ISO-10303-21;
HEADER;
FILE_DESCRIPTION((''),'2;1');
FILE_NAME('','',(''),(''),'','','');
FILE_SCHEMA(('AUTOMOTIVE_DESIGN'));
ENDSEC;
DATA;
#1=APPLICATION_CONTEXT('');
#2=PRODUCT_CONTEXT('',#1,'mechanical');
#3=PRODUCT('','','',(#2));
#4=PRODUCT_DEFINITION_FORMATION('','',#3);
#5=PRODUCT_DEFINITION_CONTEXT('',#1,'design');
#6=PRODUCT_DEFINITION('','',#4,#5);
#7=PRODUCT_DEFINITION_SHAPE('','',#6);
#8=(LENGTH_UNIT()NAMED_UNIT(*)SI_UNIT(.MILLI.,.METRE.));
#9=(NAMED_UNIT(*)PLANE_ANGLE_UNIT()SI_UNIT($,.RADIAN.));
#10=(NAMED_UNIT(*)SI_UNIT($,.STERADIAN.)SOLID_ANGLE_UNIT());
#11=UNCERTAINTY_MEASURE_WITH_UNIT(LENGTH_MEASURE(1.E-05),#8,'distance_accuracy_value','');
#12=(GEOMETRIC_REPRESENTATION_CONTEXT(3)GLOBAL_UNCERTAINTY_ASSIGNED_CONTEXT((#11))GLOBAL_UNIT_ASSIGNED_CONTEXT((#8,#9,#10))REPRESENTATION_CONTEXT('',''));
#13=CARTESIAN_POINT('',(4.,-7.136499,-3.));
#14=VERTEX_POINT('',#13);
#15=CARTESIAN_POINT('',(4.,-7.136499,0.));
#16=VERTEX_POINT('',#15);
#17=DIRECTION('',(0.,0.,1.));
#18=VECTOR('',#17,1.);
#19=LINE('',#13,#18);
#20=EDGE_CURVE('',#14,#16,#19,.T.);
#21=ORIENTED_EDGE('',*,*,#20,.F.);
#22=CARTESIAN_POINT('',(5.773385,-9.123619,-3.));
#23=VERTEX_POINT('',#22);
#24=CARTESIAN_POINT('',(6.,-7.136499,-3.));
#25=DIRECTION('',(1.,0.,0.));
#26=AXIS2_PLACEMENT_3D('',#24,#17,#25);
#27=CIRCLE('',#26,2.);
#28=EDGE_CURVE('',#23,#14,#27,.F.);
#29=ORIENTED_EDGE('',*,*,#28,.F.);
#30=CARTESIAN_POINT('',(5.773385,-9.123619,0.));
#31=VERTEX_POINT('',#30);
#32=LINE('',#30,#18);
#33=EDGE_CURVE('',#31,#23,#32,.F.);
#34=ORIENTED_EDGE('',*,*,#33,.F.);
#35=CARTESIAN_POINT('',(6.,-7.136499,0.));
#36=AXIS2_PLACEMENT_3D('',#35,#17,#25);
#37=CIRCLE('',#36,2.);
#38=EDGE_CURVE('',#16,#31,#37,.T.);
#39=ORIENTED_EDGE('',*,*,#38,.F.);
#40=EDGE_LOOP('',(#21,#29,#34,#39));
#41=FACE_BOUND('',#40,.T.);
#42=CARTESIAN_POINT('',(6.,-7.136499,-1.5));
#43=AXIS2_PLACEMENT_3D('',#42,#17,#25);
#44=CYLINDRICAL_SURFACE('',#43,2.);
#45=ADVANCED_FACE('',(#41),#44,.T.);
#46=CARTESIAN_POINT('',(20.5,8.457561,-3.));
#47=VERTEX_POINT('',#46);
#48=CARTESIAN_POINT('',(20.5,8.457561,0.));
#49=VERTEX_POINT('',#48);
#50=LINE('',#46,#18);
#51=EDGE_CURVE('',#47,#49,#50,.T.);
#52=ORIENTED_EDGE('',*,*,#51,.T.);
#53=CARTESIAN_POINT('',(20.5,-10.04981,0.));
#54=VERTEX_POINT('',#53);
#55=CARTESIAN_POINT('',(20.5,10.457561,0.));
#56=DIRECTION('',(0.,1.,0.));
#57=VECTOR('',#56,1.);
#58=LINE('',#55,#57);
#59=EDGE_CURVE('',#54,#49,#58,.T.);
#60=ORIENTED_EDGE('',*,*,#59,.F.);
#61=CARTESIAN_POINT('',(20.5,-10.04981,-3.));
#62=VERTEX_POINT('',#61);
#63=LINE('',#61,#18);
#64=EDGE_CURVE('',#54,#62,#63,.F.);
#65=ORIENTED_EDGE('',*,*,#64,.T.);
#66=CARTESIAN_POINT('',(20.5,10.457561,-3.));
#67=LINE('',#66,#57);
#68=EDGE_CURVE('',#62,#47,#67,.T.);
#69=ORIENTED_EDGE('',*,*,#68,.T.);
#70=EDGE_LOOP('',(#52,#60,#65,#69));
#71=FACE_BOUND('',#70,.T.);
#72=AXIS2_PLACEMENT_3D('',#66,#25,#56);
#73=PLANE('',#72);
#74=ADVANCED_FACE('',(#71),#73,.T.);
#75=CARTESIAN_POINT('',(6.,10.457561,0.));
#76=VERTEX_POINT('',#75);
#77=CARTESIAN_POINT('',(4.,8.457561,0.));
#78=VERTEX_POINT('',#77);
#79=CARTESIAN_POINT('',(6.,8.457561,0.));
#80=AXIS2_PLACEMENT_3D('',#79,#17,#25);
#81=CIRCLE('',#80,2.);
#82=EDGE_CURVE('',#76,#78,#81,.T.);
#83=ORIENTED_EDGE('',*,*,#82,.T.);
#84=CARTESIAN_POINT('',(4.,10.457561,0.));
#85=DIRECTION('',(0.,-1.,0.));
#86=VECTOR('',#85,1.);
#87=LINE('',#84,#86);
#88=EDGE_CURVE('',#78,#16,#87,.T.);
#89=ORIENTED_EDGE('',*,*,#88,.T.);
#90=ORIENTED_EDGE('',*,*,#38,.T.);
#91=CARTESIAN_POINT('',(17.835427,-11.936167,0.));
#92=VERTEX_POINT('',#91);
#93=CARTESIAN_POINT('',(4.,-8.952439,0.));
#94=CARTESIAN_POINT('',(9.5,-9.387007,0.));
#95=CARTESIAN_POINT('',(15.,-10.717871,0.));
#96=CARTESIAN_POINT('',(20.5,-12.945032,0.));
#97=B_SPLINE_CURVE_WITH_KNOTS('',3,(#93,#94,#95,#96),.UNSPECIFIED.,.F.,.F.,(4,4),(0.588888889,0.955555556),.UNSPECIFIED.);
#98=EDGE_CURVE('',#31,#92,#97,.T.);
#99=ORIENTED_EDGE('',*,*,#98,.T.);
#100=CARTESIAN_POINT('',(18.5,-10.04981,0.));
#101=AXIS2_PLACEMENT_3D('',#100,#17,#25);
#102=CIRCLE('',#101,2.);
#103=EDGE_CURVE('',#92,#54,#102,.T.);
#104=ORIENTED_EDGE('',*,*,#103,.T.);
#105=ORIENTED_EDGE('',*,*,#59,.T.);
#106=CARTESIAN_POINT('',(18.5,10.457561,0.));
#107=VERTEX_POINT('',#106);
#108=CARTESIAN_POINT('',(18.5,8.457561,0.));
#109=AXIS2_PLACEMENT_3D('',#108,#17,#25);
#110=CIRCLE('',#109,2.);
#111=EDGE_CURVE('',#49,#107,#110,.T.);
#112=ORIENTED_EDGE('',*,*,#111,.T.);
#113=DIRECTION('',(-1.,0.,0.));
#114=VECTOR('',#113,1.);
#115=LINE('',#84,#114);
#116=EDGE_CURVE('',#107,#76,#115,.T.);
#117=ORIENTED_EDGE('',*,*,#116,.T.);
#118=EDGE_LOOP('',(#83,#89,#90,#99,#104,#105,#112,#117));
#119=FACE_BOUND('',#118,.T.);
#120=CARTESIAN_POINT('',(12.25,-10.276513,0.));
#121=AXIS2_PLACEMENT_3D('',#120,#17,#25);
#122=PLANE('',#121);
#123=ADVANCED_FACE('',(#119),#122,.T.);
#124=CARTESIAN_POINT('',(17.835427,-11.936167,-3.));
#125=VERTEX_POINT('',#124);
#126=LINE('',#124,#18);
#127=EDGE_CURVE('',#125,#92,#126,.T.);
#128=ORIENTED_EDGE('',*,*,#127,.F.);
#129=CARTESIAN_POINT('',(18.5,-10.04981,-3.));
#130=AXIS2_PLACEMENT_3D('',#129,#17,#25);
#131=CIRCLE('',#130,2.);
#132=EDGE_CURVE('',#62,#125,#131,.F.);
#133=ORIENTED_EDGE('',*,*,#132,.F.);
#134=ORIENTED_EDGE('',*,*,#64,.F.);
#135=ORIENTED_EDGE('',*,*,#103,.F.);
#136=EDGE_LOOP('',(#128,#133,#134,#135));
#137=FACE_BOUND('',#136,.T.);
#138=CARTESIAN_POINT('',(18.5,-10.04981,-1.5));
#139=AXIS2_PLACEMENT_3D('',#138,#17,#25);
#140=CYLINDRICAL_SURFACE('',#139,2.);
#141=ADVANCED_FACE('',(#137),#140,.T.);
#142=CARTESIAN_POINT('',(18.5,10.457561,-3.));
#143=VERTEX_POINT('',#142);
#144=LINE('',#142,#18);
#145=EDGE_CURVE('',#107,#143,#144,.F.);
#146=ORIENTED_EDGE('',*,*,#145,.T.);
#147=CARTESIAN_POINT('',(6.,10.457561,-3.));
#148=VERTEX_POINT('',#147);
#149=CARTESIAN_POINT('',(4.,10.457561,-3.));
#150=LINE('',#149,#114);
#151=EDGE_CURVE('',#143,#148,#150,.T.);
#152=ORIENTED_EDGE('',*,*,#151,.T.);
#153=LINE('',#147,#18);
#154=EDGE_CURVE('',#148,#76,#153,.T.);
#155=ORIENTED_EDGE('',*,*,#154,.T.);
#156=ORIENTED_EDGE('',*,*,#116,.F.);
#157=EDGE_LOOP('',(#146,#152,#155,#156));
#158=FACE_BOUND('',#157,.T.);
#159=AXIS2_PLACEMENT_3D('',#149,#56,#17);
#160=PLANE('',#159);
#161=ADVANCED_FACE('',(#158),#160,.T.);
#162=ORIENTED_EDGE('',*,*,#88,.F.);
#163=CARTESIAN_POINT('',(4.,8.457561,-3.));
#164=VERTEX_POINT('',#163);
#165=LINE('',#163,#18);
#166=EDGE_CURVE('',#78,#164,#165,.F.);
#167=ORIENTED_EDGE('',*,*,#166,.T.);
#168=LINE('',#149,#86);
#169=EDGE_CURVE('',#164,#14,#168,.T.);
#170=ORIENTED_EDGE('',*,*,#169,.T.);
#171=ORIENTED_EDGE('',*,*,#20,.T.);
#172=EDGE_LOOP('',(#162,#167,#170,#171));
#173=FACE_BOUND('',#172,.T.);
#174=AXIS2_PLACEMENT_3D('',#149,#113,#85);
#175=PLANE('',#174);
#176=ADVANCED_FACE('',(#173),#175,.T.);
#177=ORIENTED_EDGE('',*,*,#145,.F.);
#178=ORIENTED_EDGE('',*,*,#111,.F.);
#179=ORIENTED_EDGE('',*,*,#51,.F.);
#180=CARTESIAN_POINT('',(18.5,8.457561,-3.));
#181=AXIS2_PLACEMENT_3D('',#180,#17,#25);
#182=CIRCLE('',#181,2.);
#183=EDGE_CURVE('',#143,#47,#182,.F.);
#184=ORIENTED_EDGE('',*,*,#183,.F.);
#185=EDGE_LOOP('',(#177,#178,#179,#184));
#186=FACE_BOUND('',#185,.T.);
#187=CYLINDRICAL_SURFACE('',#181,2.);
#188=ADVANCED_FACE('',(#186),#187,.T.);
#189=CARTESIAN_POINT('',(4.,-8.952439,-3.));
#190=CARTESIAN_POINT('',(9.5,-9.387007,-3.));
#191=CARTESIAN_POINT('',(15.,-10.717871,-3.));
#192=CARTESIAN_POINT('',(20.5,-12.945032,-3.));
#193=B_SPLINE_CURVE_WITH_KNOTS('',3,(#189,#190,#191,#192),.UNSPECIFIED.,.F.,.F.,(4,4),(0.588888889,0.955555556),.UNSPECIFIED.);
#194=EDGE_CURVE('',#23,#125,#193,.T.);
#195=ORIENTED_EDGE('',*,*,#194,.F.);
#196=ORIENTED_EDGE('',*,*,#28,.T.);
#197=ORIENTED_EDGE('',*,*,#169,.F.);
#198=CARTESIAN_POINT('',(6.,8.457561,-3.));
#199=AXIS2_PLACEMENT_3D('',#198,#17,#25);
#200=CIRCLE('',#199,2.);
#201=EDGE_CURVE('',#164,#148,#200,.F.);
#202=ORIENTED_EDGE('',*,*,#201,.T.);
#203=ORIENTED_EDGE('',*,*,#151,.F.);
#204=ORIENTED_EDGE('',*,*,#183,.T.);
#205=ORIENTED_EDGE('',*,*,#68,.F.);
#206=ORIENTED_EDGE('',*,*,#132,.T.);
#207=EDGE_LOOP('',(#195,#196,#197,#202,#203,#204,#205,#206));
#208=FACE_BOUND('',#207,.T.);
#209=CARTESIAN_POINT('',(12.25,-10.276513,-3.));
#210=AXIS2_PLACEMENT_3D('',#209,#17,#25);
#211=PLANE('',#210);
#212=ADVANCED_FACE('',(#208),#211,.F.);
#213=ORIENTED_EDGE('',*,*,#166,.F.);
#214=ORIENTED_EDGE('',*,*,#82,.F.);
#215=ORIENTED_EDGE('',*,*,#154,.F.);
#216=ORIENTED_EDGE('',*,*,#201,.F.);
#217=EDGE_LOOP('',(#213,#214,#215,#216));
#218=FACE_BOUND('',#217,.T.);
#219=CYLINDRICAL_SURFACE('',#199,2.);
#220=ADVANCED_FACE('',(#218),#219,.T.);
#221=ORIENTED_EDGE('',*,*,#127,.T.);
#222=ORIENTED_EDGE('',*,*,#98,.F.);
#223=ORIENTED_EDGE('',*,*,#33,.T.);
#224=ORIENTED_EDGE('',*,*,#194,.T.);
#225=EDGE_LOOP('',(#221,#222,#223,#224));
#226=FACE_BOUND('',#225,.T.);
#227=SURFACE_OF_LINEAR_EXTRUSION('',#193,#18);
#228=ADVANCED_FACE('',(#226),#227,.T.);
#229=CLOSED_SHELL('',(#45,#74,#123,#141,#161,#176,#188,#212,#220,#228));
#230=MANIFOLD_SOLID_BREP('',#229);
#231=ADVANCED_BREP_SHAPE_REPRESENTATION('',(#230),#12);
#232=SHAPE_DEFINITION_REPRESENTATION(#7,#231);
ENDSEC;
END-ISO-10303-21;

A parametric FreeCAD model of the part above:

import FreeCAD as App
import Part
import Sketcher


def edges_at(feature, points):
    """Names of the edges that pass closest to the given points."""
    edges = feature.Shape.Edges
    near = lambda p: min(range(len(edges)), key=lambda i: edges[i].distToShape(Part.Vertex(*p))[0])
    return sorted({f"Edge{near(p) + 1}" for p in points})

doc = App.newDocument("Part")
body = doc.addObject("PartDesign::Body", "Body")

# Sketch on XY plane
sketch1 = body.newObject("Sketcher::SketchObject", "Sketch")
sketch1.AttachmentSupport = (doc.getObject("XY_Plane"), [""])
sketch1.MapMode = "FlatFace"
sketch1.addGeometry(Part.LineSegment(App.Vector(4, 10.457561, 0), App.Vector(4, -8.952439, 0)), False)
sketch1.addGeometry(Part.BSplineCurve([App.Vector(4, -8.952439, 0), App.Vector(9.5, -9.387007, 0), App.Vector(15, -10.717871, 0), App.Vector(20.5, -12.945032, 0)], [4, 4], [0.588888889, 0.955555556], False, 3, [1, 1, 1, 1], False), False)
sketch1.addGeometry(Part.LineSegment(App.Vector(20.5, -12.945032, 0), App.Vector(20.5, 10.457561, 0)), False)
sketch1.addGeometry(Part.LineSegment(App.Vector(20.5, 10.457561, 0), App.Vector(4, 10.457561, 0)), False)
sketch1.addConstraint(Sketcher.Constraint("Block", 1))
sketch1.addConstraint(Sketcher.Constraint("Coincident", 0, 2, 1, 1))
sketch1.addConstraint(Sketcher.Constraint("Coincident", 1, 2, 2, 1))
sketch1.addConstraint(Sketcher.Constraint("Coincident", 2, 2, 3, 1))
sketch1.addConstraint(Sketcher.Constraint("Coincident", 3, 2, 0, 1))
sketch1.addConstraint(Sketcher.Constraint("Vertical", 0))
sketch1.addConstraint(Sketcher.Constraint("Vertical", 2))
sketch1.addConstraint(Sketcher.Constraint("Horizontal", 3))
sketch1.addConstraint(Sketcher.Constraint("DistanceY", 0, 2, 0, 1, 19.41))
pad1 = body.newObject("PartDesign::Pad", "Pad")
pad1.Profile = sketch1
pad1.Length = 3
pad1.Reversed = True
doc.recompute()

fillet = body.newObject("PartDesign::Fillet", "Fillet")
fillet.Base = (pad1, edges_at(pad1, [
    (20.5, -12.945, -1.5),
    (4, -8.952, -1.5),
    (20.5, 10.458, -1.5),
    (4, 10.458, -1.5),
]))
fillet.Radius = 2

doc.recompute()
